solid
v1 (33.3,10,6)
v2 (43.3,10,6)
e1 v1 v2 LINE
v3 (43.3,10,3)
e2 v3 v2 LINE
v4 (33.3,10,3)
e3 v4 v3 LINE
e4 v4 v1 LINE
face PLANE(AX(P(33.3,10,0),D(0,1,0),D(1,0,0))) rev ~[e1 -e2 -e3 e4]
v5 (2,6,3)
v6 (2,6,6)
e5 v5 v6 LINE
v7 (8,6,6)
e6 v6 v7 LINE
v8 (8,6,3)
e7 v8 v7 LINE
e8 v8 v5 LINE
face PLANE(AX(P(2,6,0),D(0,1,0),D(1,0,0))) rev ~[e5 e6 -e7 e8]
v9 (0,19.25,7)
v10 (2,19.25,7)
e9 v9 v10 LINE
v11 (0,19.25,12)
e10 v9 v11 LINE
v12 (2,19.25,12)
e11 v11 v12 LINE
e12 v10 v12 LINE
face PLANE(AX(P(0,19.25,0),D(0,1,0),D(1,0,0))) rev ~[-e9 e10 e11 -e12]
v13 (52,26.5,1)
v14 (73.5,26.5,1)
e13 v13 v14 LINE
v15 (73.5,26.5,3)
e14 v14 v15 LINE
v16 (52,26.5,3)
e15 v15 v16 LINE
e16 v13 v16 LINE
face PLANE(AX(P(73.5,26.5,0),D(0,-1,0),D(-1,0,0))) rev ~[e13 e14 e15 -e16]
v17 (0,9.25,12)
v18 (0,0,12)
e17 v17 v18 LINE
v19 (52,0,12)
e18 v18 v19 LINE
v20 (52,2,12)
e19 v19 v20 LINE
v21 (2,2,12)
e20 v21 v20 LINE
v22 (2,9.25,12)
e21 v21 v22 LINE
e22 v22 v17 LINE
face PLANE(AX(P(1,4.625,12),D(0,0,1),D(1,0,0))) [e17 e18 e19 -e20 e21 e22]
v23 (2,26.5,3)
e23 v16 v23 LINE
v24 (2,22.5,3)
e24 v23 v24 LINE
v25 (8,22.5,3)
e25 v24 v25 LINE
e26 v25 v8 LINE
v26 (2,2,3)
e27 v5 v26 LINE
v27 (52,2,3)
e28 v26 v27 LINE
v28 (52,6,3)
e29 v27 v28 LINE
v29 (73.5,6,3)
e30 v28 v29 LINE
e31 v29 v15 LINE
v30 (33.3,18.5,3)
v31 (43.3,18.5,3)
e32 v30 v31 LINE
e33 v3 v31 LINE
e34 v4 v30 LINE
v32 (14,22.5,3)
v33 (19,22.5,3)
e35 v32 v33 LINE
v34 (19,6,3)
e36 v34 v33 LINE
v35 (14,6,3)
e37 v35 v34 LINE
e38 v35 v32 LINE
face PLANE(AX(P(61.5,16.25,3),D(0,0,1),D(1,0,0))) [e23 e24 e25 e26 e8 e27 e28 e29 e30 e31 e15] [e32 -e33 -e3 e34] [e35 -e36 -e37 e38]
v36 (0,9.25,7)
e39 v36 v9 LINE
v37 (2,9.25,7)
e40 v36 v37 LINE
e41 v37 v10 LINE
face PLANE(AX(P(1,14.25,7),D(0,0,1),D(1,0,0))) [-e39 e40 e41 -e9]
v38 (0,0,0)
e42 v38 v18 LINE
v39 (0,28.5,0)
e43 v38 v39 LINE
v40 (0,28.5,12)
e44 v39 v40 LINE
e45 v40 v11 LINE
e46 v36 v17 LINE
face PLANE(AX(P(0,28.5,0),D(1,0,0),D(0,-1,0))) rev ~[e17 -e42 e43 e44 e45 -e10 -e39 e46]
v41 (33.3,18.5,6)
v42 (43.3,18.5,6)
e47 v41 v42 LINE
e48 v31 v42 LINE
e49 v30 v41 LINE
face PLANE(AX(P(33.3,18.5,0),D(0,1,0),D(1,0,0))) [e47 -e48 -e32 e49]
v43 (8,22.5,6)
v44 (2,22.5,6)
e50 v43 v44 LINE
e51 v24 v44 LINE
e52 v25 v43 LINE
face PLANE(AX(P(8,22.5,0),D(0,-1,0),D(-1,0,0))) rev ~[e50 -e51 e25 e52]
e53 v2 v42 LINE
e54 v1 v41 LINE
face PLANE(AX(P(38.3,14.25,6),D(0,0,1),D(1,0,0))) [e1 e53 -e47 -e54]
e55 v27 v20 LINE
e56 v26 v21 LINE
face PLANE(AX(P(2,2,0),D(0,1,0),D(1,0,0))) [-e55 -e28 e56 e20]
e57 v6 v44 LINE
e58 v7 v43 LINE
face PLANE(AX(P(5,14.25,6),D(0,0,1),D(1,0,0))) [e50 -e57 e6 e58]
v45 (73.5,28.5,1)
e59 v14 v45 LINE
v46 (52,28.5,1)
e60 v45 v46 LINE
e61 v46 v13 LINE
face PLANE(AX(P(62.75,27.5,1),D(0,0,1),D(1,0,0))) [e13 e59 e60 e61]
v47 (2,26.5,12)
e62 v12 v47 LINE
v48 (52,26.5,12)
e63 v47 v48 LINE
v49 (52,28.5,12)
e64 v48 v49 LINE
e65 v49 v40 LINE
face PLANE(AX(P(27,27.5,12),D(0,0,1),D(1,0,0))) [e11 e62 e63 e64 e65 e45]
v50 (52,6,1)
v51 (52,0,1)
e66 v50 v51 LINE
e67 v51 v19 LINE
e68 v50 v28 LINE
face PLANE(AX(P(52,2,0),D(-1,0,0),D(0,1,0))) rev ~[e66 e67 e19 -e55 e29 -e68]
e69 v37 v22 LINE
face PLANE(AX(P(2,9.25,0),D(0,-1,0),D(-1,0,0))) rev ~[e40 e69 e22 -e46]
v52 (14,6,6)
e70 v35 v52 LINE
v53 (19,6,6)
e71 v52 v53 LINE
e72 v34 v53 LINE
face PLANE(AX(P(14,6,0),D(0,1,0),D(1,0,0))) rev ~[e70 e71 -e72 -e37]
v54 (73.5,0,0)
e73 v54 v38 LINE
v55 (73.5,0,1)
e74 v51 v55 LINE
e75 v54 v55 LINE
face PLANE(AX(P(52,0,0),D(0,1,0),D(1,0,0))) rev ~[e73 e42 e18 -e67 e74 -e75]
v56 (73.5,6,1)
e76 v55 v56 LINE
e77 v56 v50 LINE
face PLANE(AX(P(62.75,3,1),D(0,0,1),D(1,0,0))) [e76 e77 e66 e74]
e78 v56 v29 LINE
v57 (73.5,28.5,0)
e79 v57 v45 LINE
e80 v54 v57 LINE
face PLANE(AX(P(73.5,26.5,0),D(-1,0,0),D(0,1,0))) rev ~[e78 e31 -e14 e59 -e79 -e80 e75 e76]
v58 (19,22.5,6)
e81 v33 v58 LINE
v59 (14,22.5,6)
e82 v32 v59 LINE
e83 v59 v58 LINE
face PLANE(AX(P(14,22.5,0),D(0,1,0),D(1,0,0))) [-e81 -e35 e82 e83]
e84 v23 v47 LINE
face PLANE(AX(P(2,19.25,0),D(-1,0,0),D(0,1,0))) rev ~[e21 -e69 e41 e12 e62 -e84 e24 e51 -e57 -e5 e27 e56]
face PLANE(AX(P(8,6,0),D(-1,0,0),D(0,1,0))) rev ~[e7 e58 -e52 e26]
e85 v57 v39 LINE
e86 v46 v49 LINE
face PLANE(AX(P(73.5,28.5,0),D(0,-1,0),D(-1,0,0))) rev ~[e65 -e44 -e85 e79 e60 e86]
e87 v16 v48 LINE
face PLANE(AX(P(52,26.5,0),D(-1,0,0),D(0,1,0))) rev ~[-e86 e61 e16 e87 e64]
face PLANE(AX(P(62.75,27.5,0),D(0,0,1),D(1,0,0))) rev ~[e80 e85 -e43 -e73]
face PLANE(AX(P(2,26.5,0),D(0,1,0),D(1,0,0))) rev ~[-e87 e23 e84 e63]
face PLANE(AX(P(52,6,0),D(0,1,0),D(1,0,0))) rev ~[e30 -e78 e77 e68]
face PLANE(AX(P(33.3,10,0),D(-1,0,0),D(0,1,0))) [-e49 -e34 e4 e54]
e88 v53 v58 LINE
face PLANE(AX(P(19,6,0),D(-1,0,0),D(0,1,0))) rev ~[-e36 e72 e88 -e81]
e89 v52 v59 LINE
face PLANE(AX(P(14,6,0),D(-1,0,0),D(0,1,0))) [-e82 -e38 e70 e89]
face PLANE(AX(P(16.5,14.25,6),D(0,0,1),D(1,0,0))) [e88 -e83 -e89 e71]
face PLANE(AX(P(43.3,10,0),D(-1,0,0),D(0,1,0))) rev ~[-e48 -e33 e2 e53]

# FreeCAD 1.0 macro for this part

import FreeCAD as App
import Part
import Sketcher


def add_polygon(sketch, points):
    """Adds a closed chain of lines whose ends are joined by coincident constraints."""
    first, n = sketch.GeometryCount, len(points)
    for a, b in zip(points, points[1:] + points[:1]):
        sketch.addGeometry(Part.LineSegment(App.Vector(*a, 0), App.Vector(*b, 0)), False)
    for i in range(n):
        sketch.addConstraint(Sketcher.Constraint("Coincident", first + i, 2, first + (i + 1) % n, 1))

doc = App.newDocument("Part")
body = doc.addObject("PartDesign::Body", "Body")

sketch1 = doc.addObject("Sketcher::SketchObject", "Sketch")
body.addObject(sketch1)
sketch1.AttachmentSupport = (doc.XY_Plane, [""])
sketch1.MapMode = "FlatFace"
add_polygon(sketch1, [(52, 6), (73.5, 6), (73.5, 26.5), (2, 26.5), (2, 22.5), (8, 22.5), (8, 6), (2, 6), (2, 2), (52, 2)])
add_polygon(sketch1, [(19, 6), (14, 6), (14, 22.5), (19, 22.5)])
add_polygon(sketch1, [(43.3, 10), (33.3, 10), (33.3, 18.5), (43.3, 18.5)])
sketch1.addConstraint([
    Sketcher.Constraint("Horizontal", 0),
    Sketcher.Constraint("Vertical", 1),
    Sketcher.Constraint("Horizontal", 2),
    Sketcher.Constraint("Vertical", 3),
    Sketcher.Constraint("Horizontal", 4),
    Sketcher.Constraint("Vertical", 5),
    Sketcher.Constraint("Horizontal", 6),
    Sketcher.Constraint("Vertical", 7),
    Sketcher.Constraint("Horizontal", 8),
    Sketcher.Constraint("Vertical", 9),
    Sketcher.Constraint("Horizontal", 10),
    Sketcher.Constraint("Vertical", 11),
    Sketcher.Constraint("Horizontal", 12),
    Sketcher.Constraint("Vertical", 13),
    Sketcher.Constraint("Horizontal", 14),
    Sketcher.Constraint("Vertical", 15),
    Sketcher.Constraint("Horizontal", 16),
    Sketcher.Constraint("Vertical", 17),
    Sketcher.Constraint("Horizontal", 0, 2, 5, 2),
    Sketcher.Constraint("Horizontal", 9, 2, 10, 2),
    Sketcher.Constraint("Horizontal", 4, 2, 11, 2),
    Sketcher.Constraint("Vertical", 3, 2, 6, 2),
    Sketcher.Constraint("Equal", 3, 7),
    Sketcher.Constraint("DistanceX", 4, 1, 4, 2, 6.0),
    Sketcher.Constraint("DistanceX", 8, 1, 8, 2, 50.0),
    Sketcher.Constraint("DistanceX", 10, 2, 10, 1, 5.0),
    Sketcher.Constraint("DistanceX", 14, 2, 14, 1, 10.0),
    Sketcher.Constraint("DistanceY", 3, 2, 3, 1, 4.0),
    Sketcher.Constraint("DistanceX", 0, 1, 0, 2, 21.5),
    Sketcher.Constraint("DistanceY", 1, 1, 1, 2, 20.5),
    Sketcher.Constraint("DistanceY", 15, 1, 15, 2, 8.5),
    Sketcher.Constraint("DistanceY", -1, 1, 0, 2, 6.0),
    Sketcher.Constraint("DistanceX", -1, 1, 2, 2, 2.0),
    Sketcher.Constraint("DistanceX", -1, 1, 10, 2, 14.0),
    Sketcher.Constraint("DistanceY", -1, 1, 14, 2, 10.0),
    Sketcher.Constraint("DistanceX", -1, 1, 14, 2, 33.3),
])
pad1 = doc.addObject("PartDesign::Pad", "Pad")
body.addObject(pad1)
pad1.Profile = sketch1
pad1.Length = 3

sketch2 = doc.addObject("Sketcher::SketchObject", "Sketch001")
body.addObject(sketch2)
sketch2.AttachmentSupport = (doc.XY_Plane, [""])
sketch2.MapMode = "FlatFace"
add_polygon(sketch2, [(2, 6), (8, 6), (8, 22), (2, 22)])
add_polygon(sketch2, [(14, 22), (14, 6), (19, 6), (19, 22)])
add_polygon(sketch2, [(33, 18), (33, 10), (43, 10), (43, 18)])
sketch2.addConstraint([
    Sketcher.Constraint("Horizontal", 0),
    Sketcher.Constraint("Vertical", 1),
    Sketcher.Constraint("Horizontal", 2),
    Sketcher.Constraint("Vertical", 3),
    Sketcher.Constraint("Vertical", 4),
    Sketcher.Constraint("Horizontal", 5),
    Sketcher.Constraint("Vertical", 6),
    Sketcher.Constraint("Horizontal", 7),
    Sketcher.Constraint("Vertical", 8),
    Sketcher.Constraint("Horizontal", 9),
    Sketcher.Constraint("Vertical", 10),
    Sketcher.Constraint("Horizontal", 11),
    Sketcher.Constraint("Horizontal", 3, 2, 4, 2),
    Sketcher.Constraint("Horizontal", 2, 2, 6, 2),
    Sketcher.Constraint("DistanceX", 0, 1, 0, 2, 6.0),
    Sketcher.Constraint("DistanceX", 5, 1, 5, 2, 5.0),
    Sketcher.Constraint("DistanceX", 9, 1, 9, 2, 10.0),
    Sketcher.Constraint("DistanceY", 1, 1, 1, 2, 16.5),
    Sketcher.Constraint("DistanceY", 8, 2, 8, 1, 8.5),
    Sketcher.Constraint("DistanceX", -1, 1, 0, 2, 8.0),
    Sketcher.Constraint("DistanceY", -1, 1, 0, 2, 6.0),
    Sketcher.Constraint("DistanceX", -1, 1, 4, 2, 14.0),
    Sketcher.Constraint("DistanceY", -1, 1, 8, 2, 10.0),
    Sketcher.Constraint("DistanceX", -1, 1, 8, 2, 33.3),
])
pad2 = doc.addObject("PartDesign::Pad", "Pad001")
body.addObject(pad2)
pad2.Profile = sketch2
pad2.Length = 6

sketch3 = doc.addObject("Sketcher::SketchObject", "Sketch002")
body.addObject(sketch3)
sketch3.AttachmentSupport = (doc.XY_Plane, [""])
sketch3.MapMode = "FlatFace"
add_polygon(sketch3, [(0, 19.2), (0, 9.2), (2, 9.2), (2, 19.2)])
sketch3.addConstraint([
    Sketcher.Constraint("Vertical", 0),
    Sketcher.Constraint("Horizontal", 1),
    Sketcher.Constraint("Vertical", 2),
    Sketcher.Constraint("Horizontal", 3),
    Sketcher.Constraint("PointOnObject", 0, 2, -2),
    Sketcher.Constraint("DistanceX", 1, 1, 1, 2, 2.0),
    Sketcher.Constraint("DistanceY", 0, 2, 0, 1, 10.0),
    Sketcher.Constraint("DistanceY", -1, 1, 0, 2, 9.25),
])
pad3 = doc.addObject("PartDesign::Pad", "Pad002")
body.addObject(pad3)
pad3.Profile = sketch3
pad3.Length = 7

sketch4 = doc.addObject("Sketcher::SketchObject", "Sketch003")
body.addObject(sketch4)
sketch4.AttachmentSupport = (doc.XY_Plane, [""])
sketch4.MapMode = "FlatFace"
add_polygon(sketch4, [(2, 26.5), (52, 26.5), (52, 28.5), (0, 28.5), (0, 19.2), (2, 19.2)])
add_polygon(sketch4, [(0, 9.2), (0, 0), (52, 0), (52, 2), (2, 2), (2, 9.2)])
sketch4.addConstraint([
    Sketcher.Constraint("Horizontal", 0),
    Sketcher.Constraint("Vertical", 1),
    Sketcher.Constraint("Horizontal", 2),
    Sketcher.Constraint("Vertical", 3),
    Sketcher.Constraint("Horizontal", 4),
    Sketcher.Constraint("Vertical", 5),
    Sketcher.Constraint("Vertical", 6),
    Sketcher.Constraint("Horizontal", 7),
    Sketcher.Constraint("Vertical", 8),
    Sketcher.Constraint("Horizontal", 9),
    Sketcher.Constraint("Vertical", 10),
    Sketcher.Constraint("Horizontal", 11),
    Sketcher.Constraint("Coincident", 6, 2, -1, 1),
    Sketcher.Constraint("PointOnObject", 2, 2, -2),
    Sketcher.Constraint("Vertical", 1, 2, 7, 2),
    Sketcher.Constraint("Vertical", 5, 2, 9, 2),
    Sketcher.Constraint("Equal", 11, 1),
    Sketcher.Constraint("Equal", 3, 6),
    Sketcher.Constraint("Equal", 1, 8),
    Sketcher.Constraint("DistanceX", 0, 1, 0, 2, 50.0),
    Sketcher.Constraint("DistanceX", 2, 2, 2, 1, 52.0),
    Sketcher.Constraint("DistanceY", 10, 2, 4, 2, 10.0),
    Sketcher.Constraint("DistanceY", 3, 2, 3, 1, 9.25),
])
pad4 = doc.addObject("PartDesign::Pad", "Pad003")
body.addObject(pad4)
pad4.Profile = sketch4
pad4.Length = 12

sketch5 = doc.addObject("Sketcher::SketchObject", "Sketch004")
body.addObject(sketch5)
sketch5.AttachmentSupport = (doc.XY_Plane, [""])
sketch5.MapMode = "FlatFace"
add_polygon(sketch5, [(52, 28.5), (52, 26.5), (73.5, 26.5), (73.5, 28.5)])
add_polygon(sketch5, [(52, 0), (73.5, 0), (73.5, 6), (52, 6)])
sketch5.addConstraint([
    Sketcher.Constraint("Vertical", 0),
    Sketcher.Constraint("Horizontal", 1),
    Sketcher.Constraint("Vertical", 2),
    Sketcher.Constraint("Horizontal", 3),
    Sketcher.Constraint("Horizontal", 4),
    Sketcher.Constraint("Vertical", 5),
    Sketcher.Constraint("Horizontal", 6),
    Sketcher.Constraint("Vertical", 7),
    Sketcher.Constraint("PointOnObject", 4, 2, -1),
    Sketcher.Constraint("Vertical", 2, 2, 4, 2),
    Sketcher.Constraint("Vertical", 3, 2, 6, 2),
    Sketcher.Constraint("DistanceY", 0, 2, 0, 1, 2.0),
    Sketcher.Constraint("DistanceY", 5, 1, 5, 2, 6.0),
    Sketcher.Constraint("DistanceX", 1, 1, 1, 2, 21.5),
    Sketcher.Constraint("DistanceX", -1, 1, 0, 2, 52.0),
    Sketcher.Constraint("DistanceY", -1, 1, 0, 2, 26.5),
])
pad5 = doc.addObject("PartDesign::Pad", "Pad004")
body.addObject(pad5)
pad5.Profile = sketch5
pad5.Length = 1

doc.recompute()
